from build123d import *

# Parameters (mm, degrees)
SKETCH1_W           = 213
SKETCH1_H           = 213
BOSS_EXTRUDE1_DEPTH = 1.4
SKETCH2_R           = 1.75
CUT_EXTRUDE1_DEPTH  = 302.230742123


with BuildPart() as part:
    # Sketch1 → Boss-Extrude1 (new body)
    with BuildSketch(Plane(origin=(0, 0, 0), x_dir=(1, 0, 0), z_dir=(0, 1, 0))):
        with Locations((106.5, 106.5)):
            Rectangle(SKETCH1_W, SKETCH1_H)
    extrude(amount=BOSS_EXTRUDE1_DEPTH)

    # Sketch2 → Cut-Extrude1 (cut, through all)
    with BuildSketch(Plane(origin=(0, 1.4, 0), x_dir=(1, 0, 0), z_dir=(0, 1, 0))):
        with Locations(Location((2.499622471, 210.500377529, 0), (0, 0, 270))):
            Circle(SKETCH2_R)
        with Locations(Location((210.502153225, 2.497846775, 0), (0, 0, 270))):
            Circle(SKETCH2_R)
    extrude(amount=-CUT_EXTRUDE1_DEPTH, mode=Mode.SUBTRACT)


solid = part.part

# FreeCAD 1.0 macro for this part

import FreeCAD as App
import Part
import Sketcher
from FreeCAD import Vector

doc = App.newDocument("Part")
body = doc.addObject("PartDesign::Body", "Body")

# Sketch on XZ plane
sketch1 = doc.addObject("Sketcher::SketchObject", "Sketch")
body.addObject(sketch1)
sketch1.AttachmentSupport = (doc.XZ_Plane, [""])
sketch1.MapMode = "FlatFace"
sketch1.addGeometry(Part.LineSegment(Vector(0, -213, 0), Vector(0, 0, 0)), False)
sketch1.addGeometry(Part.LineSegment(Vector(0, 0, 0), Vector(213, 0, 0)), False)
sketch1.addGeometry(Part.LineSegment(Vector(213, 0, 0), Vector(213, -213, 0)), False)
sketch1.addGeometry(Part.LineSegment(Vector(213, -213, 0), Vector(0, -213, 0)), False)
sketch1.addConstraint(Sketcher.Constraint("Coincident", 0, 2, 1, 1))
sketch1.addConstraint(Sketcher.Constraint("Coincident", 1, 2, 2, 1))
sketch1.addConstraint(Sketcher.Constraint("Coincident", 2, 2, 3, 1))
sketch1.addConstraint(Sketcher.Constraint("Coincident", 3, 2, 0, 1))
sketch1.addConstraint(Sketcher.Constraint("Vertical", 0))
sketch1.addConstraint(Sketcher.Constraint("Horizontal", 1))
sketch1.addConstraint(Sketcher.Constraint("Vertical", 2))
sketch1.addConstraint(Sketcher.Constraint("Horizontal", 3))
sketch1.addConstraint(Sketcher.Constraint("Coincident", 0, 2, -1, 1))
sketch1.addConstraint(Sketcher.Constraint("Equal", 3, 0))
sketch1.addConstraint(Sketcher.Constraint("DistanceX", 1, 1, 1, 2, 213.0))
pad1 = doc.addObject("PartDesign::Pad", "Pad")
body.addObject(pad1)
pad1.Profile = sketch1
pad1.Length = 1.4
pad1.Reversed = True

# Sketch on XZ plane
sketch2 = doc.addObject("Sketcher::SketchObject", "Sketch001")
body.addObject(sketch2)
sketch2.AttachmentSupport = (doc.XZ_Plane, [""])
sketch2.MapMode = "FlatFace"
sketch2.AttachmentOffset = App.Placement(Vector(0, 0, -1.4), App.Rotation())
sketch2.addGeometry(Part.Circle(Vector(2.499622, -210.500378, 0), Vector(0, 0, 1), 1.75), False)
sketch2.addGeometry(Part.Circle(Vector(210.502153, -2.497847, 0), Vector(0, 0, 1), 1.75), False)
sketch2.addConstraint(Sketcher.Constraint("Equal", 0, 1))
sketch2.addConstraint(Sketcher.Constraint("Diameter", 0, 3.5))
sketch2.addConstraint(Sketcher.Constraint("DistanceX", 0, 3, 1, 3, 208.002531))
sketch2.addConstraint(Sketcher.Constraint("DistanceY", 0, 3, 1, 3, 208.002531))
sketch2.addConstraint(Sketcher.Constraint("DistanceX", -1, 1, 0, 3, 2.499622))
sketch2.addConstraint(Sketcher.Constraint("DistanceY", 0, 3, -1, 1, 210.500378))
pocket1 = doc.addObject("PartDesign::Pocket", "Pocket")
body.addObject(pocket1)
pocket1.Profile = sketch2
pocket1.Type = "ThroughAll"
pocket1.Reversed = True

doc.recompute()
